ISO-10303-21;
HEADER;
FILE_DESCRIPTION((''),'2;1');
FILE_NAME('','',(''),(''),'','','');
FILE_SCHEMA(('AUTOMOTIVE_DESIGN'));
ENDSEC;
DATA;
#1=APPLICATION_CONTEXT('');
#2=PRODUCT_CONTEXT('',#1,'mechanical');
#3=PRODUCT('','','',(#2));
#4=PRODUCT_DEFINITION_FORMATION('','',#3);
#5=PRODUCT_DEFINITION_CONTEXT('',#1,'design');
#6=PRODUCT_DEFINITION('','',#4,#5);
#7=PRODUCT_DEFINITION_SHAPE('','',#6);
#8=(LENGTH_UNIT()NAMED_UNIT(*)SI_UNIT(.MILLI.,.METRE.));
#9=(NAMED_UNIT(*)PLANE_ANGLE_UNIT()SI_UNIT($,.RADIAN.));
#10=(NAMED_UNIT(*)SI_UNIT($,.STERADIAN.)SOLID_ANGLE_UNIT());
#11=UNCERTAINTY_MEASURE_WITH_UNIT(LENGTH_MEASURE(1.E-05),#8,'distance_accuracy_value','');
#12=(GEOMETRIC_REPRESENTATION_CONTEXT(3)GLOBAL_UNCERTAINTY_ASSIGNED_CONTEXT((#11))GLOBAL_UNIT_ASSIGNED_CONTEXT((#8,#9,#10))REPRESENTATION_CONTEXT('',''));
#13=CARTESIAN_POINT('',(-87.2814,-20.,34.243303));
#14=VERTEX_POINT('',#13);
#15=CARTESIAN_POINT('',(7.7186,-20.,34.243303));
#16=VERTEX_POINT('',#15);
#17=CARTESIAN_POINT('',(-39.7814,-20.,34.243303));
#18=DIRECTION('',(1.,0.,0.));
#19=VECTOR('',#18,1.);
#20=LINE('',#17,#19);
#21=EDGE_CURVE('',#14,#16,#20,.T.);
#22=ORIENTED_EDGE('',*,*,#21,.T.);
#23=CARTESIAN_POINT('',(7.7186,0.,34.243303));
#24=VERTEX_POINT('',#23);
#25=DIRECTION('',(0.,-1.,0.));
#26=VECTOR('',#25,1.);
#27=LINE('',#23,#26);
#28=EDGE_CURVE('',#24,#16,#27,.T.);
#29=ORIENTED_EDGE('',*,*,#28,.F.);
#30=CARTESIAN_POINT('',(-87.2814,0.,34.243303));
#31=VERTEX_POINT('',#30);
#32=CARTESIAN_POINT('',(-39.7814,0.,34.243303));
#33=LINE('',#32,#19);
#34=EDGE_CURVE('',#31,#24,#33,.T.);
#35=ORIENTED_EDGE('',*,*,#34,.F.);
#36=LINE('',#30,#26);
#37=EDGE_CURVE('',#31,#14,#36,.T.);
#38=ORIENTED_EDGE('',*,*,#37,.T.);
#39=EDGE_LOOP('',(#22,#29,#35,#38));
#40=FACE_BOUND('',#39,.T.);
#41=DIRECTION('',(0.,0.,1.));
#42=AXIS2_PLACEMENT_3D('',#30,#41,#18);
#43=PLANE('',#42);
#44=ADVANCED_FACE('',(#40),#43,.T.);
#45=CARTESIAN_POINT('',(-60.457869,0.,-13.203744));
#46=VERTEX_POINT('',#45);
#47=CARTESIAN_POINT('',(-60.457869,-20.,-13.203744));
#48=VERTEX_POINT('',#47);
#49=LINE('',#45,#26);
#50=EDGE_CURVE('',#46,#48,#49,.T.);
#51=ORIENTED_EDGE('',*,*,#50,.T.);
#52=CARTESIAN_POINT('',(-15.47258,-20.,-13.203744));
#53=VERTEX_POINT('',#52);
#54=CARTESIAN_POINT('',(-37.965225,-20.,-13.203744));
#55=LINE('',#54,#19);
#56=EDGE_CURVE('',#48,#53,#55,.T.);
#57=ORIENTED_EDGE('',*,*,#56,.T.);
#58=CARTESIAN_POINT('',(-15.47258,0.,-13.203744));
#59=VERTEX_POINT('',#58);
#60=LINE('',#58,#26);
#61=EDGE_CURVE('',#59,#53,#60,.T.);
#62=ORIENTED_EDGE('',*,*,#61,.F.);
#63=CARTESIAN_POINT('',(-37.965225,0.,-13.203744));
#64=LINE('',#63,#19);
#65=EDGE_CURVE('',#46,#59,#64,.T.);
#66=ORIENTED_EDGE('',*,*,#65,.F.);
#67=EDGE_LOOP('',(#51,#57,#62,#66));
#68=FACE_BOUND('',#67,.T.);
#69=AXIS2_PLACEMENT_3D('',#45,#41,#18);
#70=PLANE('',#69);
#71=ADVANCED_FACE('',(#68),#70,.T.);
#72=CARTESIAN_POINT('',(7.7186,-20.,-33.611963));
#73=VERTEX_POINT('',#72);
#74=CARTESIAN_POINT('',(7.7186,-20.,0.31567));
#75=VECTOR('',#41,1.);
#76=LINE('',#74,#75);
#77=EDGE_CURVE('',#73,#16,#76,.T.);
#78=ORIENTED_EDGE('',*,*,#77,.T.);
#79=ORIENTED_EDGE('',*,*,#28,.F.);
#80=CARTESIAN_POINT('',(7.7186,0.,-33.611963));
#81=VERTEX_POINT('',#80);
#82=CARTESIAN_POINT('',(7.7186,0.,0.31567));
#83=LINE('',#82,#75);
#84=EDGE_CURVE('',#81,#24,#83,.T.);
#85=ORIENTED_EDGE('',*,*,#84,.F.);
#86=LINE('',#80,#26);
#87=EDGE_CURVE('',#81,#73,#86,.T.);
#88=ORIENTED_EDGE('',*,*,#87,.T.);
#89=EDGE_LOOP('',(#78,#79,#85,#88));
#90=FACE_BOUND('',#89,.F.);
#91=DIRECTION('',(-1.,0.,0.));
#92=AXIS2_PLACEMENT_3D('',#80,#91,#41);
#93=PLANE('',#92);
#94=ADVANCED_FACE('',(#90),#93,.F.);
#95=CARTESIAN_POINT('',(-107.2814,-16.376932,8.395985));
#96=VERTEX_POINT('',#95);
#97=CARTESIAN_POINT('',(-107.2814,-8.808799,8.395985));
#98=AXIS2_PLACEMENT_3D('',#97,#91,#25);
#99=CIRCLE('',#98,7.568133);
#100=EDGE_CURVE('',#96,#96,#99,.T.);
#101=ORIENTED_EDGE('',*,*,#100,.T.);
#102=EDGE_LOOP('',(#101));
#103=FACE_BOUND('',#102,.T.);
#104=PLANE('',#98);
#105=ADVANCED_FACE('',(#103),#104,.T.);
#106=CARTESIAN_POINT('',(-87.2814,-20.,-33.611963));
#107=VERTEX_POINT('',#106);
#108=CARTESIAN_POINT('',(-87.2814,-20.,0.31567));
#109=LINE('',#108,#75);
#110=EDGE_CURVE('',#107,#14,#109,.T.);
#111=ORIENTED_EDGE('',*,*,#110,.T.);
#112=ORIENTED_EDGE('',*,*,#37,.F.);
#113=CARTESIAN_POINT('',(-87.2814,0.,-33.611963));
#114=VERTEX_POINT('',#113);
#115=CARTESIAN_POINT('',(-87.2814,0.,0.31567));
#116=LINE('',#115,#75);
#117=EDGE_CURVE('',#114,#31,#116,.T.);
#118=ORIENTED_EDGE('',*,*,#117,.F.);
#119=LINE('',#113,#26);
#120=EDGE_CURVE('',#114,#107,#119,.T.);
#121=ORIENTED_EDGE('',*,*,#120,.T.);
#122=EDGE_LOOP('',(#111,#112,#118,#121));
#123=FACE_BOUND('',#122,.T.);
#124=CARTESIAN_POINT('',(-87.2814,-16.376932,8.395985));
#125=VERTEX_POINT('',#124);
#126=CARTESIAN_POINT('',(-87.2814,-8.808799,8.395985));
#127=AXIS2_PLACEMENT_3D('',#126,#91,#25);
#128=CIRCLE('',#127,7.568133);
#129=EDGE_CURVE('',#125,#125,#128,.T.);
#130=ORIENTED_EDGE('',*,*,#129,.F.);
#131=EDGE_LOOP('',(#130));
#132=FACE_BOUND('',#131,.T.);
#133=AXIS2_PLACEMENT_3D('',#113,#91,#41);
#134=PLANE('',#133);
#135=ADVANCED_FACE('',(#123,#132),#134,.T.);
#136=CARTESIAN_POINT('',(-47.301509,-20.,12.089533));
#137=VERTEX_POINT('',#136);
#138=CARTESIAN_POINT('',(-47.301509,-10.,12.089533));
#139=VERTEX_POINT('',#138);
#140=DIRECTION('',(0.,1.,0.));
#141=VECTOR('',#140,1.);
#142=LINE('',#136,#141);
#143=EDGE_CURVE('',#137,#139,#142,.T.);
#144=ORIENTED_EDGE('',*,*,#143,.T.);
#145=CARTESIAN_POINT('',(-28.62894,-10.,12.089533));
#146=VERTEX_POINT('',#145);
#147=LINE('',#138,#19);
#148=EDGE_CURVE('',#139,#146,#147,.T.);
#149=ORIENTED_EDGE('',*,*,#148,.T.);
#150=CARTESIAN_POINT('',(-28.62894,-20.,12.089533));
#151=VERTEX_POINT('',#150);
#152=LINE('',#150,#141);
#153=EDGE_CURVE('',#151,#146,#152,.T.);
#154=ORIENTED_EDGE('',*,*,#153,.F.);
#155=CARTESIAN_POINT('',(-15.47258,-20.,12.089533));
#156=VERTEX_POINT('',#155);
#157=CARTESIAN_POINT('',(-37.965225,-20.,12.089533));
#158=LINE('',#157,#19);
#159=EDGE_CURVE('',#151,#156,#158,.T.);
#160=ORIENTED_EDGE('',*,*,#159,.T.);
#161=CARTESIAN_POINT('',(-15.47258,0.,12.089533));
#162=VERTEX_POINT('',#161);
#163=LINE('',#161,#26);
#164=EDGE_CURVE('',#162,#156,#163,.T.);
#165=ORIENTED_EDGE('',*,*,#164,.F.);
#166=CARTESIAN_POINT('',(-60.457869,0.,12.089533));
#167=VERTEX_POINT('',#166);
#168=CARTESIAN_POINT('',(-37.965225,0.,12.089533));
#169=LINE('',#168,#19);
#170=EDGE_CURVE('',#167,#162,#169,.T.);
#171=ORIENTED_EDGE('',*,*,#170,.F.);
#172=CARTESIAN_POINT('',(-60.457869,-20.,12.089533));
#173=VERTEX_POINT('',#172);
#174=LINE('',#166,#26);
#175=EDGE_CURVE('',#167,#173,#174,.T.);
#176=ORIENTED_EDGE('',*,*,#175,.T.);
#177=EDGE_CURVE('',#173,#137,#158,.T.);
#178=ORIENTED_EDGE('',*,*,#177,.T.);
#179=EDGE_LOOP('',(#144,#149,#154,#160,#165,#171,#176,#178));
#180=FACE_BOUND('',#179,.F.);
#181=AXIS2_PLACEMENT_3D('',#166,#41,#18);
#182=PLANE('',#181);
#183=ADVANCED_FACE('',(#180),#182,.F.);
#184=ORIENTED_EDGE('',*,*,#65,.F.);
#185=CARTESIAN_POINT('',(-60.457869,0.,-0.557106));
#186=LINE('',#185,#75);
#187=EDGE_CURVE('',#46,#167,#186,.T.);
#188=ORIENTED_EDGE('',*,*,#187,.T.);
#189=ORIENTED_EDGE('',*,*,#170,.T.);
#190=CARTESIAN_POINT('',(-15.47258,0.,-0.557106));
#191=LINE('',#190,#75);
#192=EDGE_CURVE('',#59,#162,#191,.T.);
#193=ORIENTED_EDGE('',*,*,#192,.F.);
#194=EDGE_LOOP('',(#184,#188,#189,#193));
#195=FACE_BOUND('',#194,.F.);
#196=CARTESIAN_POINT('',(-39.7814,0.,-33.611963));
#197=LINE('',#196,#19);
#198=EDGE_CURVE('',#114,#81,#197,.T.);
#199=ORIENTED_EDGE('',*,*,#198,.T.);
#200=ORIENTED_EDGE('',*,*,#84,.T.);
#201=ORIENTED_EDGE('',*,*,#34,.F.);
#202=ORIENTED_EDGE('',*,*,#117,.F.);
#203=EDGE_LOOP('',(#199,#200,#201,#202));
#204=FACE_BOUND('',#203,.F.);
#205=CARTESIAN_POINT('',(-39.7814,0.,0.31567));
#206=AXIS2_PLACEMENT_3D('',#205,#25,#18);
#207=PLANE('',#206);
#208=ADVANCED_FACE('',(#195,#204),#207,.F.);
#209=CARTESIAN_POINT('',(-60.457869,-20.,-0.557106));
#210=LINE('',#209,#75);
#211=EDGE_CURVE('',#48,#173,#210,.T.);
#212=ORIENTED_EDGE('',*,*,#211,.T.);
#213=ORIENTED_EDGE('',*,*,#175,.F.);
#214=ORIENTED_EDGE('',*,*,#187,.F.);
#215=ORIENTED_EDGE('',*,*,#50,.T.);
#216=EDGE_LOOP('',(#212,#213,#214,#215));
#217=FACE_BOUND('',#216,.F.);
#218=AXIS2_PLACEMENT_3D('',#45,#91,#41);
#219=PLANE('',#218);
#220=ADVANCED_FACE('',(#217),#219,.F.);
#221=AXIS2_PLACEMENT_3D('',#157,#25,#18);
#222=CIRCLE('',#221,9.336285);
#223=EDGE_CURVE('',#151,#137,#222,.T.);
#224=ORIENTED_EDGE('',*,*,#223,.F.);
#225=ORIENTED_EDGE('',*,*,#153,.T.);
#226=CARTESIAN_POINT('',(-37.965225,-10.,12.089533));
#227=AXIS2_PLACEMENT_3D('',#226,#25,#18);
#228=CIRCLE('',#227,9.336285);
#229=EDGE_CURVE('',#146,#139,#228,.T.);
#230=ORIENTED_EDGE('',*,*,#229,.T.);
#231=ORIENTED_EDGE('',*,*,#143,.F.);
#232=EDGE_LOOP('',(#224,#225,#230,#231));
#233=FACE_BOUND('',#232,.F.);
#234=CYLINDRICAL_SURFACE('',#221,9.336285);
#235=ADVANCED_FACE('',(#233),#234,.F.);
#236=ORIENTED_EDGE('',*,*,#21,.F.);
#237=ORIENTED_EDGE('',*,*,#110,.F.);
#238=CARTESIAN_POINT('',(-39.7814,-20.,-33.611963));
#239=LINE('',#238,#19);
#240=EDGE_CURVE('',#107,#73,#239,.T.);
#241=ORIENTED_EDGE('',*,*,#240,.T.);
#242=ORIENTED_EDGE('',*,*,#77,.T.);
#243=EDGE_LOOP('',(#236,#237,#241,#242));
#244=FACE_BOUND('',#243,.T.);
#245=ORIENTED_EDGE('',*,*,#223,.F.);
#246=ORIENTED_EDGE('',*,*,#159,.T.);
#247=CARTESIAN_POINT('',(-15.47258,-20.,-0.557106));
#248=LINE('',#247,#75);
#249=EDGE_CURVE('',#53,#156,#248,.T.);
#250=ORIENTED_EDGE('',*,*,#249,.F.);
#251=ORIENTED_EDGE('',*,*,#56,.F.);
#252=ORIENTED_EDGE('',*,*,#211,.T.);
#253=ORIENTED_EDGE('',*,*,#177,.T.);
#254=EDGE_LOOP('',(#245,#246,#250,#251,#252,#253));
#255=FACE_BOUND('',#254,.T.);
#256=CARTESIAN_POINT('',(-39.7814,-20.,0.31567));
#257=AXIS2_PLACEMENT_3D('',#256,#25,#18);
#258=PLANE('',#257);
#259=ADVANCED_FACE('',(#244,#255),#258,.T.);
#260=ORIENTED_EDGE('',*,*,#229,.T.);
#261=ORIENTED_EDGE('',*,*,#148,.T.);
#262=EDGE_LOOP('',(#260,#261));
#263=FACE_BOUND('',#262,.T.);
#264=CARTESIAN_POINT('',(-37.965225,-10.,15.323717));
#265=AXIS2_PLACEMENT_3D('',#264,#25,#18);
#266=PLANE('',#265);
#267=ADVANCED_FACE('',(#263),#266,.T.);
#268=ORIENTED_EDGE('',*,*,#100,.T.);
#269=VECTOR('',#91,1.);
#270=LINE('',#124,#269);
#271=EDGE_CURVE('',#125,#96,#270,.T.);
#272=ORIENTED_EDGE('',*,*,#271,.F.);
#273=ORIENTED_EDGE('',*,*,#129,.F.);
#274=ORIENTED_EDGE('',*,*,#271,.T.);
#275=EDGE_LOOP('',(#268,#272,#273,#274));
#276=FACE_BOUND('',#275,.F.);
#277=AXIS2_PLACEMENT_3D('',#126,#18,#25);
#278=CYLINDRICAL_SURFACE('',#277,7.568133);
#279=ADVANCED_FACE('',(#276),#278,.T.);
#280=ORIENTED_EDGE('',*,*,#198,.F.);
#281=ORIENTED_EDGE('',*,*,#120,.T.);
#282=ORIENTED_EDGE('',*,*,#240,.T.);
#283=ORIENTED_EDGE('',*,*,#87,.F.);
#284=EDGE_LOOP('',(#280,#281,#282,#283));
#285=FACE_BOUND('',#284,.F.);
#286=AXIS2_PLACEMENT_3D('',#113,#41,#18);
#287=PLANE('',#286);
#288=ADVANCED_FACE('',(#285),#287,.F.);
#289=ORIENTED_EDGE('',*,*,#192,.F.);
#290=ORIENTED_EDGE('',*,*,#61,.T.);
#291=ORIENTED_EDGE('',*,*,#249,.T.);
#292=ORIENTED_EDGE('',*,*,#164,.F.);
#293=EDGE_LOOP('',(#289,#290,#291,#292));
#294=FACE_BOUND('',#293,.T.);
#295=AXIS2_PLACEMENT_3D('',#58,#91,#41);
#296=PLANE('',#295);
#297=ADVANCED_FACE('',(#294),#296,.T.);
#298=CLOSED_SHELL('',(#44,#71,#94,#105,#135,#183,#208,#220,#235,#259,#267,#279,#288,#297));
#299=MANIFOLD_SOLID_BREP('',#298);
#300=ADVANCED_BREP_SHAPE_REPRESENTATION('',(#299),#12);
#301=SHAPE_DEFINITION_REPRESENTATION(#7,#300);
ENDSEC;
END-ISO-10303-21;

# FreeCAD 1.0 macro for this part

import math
import FreeCAD as App
import Part
import Sketcher
from FreeCAD import Vector


def add_polygon(sketch, points):
    """Adds a closed chain of lines whose ends are joined by coincident constraints."""
    first, n = sketch.GeometryCount, len(points)
    for a, b in zip(points, points[1:] + points[:1]):
        sketch.addGeometry(Part.LineSegment(App.Vector(*a, 0), App.Vector(*b, 0)), False)
    for i in range(n):
        sketch.addConstraint(Sketcher.Constraint("Coincident", first + i, 2, first + (i + 1) % n, 1))

doc = App.newDocument("Part")
body = doc.addObject("PartDesign::Body", "Body")

sketch1 = body.newObject("Sketcher::SketchObject", "Sketch")
sketch1.AttachmentSupport = (doc.getObject("XZ_Plane"), [""])
sketch1.MapMode = "FlatFace"
add_polygon(sketch1, [(-87.2814, 34.243303), (-87.2814, -33.611963), (7.7186, -33.611963), (7.7186, 34.243303)])
add_polygon(sketch1, [(-15.47258, -13.203744), (-60.457869, -13.203744), (-60.457869, 12.089533), (-15.47258, 12.089533)])
sketch1.addConstraint([
    Sketcher.Constraint("Vertical", 0),
    Sketcher.Constraint("Horizontal", 1),
    Sketcher.Constraint("Vertical", 2),
    Sketcher.Constraint("Horizontal", 3),
    Sketcher.Constraint("Horizontal", 4),
    Sketcher.Constraint("Vertical", 5),
    Sketcher.Constraint("Horizontal", 6),
    Sketcher.Constraint("Vertical", 7),
    Sketcher.Constraint("DistanceX", 1, 1, 1, 2, 95.0),
    Sketcher.Constraint("DistanceX", 4, 2, 4, 1, 44.985289),
    Sketcher.Constraint("DistanceX", 0, 2, -1, 1, 87.2814),
    Sketcher.Constraint("DistanceY", 0, 2, 0, 1, 67.855266),
    Sketcher.Constraint("DistanceY", 5, 1, 5, 2, 25.293277),
    Sketcher.Constraint("DistanceX", 4, 2, -1, 1, 60.457869),
    Sketcher.Constraint("DistanceY", 0, 2, 4, 2, 20.408219),
    Sketcher.Constraint("DistanceY", 0, 2, -1, 1, 33.611963),
])
pad1 = body.newObject("PartDesign::Pad", "Pad")
pad1.Profile = sketch1
pad1.Length = 20

sketch2 = body.newObject("Sketcher::SketchObject", "Sketch001")
sketch2.AttachmentSupport = (doc.getObject("YZ_Plane"), [""])
sketch2.MapMode = "FlatFace"
sketch2.AttachmentOffset = App.Placement(Vector(0, 0, -87.2814), App.Rotation())
sketch2.addGeometry(Part.Circle(Vector(-8.808799, 8.395985, 0), Vector(0, 0, 1), 7.568133), False)
sketch2.addConstraint([
    Sketcher.Constraint("Diameter", 0, 15.136266),
    Sketcher.Constraint("DistanceX", 0, 3, -1, 1, 8.808799),
    Sketcher.Constraint("DistanceY", -1, 1, 0, 3, 8.395985),
])
pad2 = body.newObject("PartDesign::Pad", "Pad001")
pad2.Profile = sketch2
pad2.Length = 20
pad2.Reversed = True

sketch3 = body.newObject("Sketcher::SketchObject", "Sketch002")
sketch3.AttachmentSupport = (doc.getObject("XZ_Plane"), [""])
sketch3.MapMode = "FlatFace"
sketch3.AttachmentOffset = App.Placement(Vector(0, 0, 20), App.Rotation())
sketch3.addGeometry([
    Part.LineSegment(Vector(-47.301509, 12.089533, 0), Vector(-28.62894, 12.089533, 0)),
    Part.ArcOfCircle(Part.Circle(Vector(-37.965225, 12.089533, 0), Vector(0, 0, 1), 9.336285), math.radians(0), math.radians(180)),
], False)
sketch3.addConstraint([
    Sketcher.Constraint("Coincident", 0, 1, 1, 2),
    Sketcher.Constraint("Coincident", 1, 1, 0, 2),
    Sketcher.Constraint("Horizontal", 0),
    Sketcher.Constraint("Horizontal", 1, 3, 0, 1),
    Sketcher.Constraint("Radius", 1, 9.336285),
    Sketcher.Constraint("DistanceX", 0, 1, -1, 1, 47.301509),
    Sketcher.Constraint("DistanceY", -1, 1, 1, 3, 12.089533),
])
pocket1 = body.newObject("PartDesign::Pocket", "Pocket")
pocket1.Profile = sketch3
pocket1.Length = 10

doc.recompute()
